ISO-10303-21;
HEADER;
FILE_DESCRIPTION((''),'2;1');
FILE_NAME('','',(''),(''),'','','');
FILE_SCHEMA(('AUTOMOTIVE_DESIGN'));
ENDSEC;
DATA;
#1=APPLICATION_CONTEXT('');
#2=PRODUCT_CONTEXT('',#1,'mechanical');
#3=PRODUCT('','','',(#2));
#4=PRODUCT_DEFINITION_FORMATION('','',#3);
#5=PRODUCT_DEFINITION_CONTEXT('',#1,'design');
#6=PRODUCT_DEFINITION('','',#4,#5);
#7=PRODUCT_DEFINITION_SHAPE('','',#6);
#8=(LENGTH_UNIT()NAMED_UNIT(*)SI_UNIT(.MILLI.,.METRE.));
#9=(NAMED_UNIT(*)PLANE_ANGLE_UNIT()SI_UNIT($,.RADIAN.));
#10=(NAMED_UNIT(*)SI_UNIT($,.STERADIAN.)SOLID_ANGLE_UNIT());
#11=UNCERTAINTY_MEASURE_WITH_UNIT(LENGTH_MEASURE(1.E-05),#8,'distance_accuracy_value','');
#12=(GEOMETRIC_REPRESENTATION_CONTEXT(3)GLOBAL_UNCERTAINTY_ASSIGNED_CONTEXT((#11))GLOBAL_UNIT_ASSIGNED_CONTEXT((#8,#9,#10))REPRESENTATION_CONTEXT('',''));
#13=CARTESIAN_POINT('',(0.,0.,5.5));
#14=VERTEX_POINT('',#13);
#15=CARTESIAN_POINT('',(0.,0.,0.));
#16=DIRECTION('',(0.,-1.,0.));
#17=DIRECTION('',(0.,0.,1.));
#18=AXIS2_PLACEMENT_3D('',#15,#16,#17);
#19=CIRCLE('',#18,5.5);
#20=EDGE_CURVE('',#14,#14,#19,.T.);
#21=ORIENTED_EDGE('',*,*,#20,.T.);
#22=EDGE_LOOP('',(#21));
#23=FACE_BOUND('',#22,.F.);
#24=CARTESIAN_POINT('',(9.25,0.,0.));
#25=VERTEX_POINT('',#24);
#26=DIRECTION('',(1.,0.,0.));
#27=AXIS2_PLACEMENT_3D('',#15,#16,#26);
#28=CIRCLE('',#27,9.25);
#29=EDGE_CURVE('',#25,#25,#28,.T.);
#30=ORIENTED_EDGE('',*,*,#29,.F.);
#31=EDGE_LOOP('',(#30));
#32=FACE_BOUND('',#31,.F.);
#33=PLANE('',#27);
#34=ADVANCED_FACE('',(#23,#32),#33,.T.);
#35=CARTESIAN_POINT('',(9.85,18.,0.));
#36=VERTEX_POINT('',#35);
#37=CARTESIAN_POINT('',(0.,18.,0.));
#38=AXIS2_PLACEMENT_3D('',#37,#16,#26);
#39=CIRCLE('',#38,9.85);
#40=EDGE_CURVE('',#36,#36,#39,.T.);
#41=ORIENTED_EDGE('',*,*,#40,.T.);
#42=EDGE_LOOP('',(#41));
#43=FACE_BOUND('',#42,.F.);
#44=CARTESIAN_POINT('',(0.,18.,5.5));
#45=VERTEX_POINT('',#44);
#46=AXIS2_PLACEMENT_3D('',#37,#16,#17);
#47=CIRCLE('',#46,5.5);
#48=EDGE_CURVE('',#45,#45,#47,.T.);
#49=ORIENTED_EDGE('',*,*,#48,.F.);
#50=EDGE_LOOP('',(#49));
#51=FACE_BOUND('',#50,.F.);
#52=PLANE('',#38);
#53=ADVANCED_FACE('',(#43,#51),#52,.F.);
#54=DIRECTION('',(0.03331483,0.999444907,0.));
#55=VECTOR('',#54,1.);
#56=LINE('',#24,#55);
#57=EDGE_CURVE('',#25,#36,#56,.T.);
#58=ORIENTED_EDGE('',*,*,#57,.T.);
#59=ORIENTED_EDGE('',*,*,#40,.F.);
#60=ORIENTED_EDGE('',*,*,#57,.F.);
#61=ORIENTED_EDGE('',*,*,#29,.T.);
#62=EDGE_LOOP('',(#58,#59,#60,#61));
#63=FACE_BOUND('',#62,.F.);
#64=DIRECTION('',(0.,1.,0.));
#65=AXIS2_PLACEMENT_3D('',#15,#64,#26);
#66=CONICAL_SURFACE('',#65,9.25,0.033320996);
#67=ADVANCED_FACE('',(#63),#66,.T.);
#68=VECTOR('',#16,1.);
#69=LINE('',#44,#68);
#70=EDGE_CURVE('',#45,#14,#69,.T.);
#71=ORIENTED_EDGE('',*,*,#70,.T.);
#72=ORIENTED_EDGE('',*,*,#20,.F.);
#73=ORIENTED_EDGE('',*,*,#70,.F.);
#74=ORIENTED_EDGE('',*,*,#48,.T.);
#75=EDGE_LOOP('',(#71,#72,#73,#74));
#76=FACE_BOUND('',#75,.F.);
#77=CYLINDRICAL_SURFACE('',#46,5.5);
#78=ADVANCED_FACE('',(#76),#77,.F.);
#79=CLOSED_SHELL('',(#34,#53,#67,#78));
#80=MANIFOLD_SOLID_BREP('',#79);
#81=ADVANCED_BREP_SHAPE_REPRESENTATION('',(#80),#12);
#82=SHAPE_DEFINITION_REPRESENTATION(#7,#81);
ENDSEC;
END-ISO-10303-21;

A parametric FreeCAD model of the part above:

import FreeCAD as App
import Part
import Sketcher
Q = App.Units.Quantity


def add_polygon(sketch, points):
    """Adds a closed chain of lines whose ends are joined by coincident constraints."""
    first, n = sketch.GeometryCount, len(points)
    for a, b in zip(points, points[1:] + points[:1]):
        sketch.addGeometry(Part.LineSegment(App.Vector(*a, 0), App.Vector(*b, 0)), False)
    for i in range(n):
        sketch.addConstraint(Sketcher.Constraint("Coincident", first + i, 2, first + (i + 1) % n, 1))

doc = App.newDocument("Part")
body = doc.addObject("PartDesign::Body", "Body")

sketch1 = body.newObject("Sketcher::SketchObject", "Sketch")
sketch1.AttachmentSupport = (doc.getObject("XY_Plane"), [""])
sketch1.MapMode = "FlatFace"
add_polygon(sketch1, [(0, 18), (0, 0), (9, 0), (10, 18)])
sketch1.addConstraint(Sketcher.Constraint("Vertical", 0))
sketch1.addConstraint(Sketcher.Constraint("Horizontal", 1))
sketch1.addConstraint(Sketcher.Constraint("Horizontal", 3))
sketch1.addConstraint(Sketcher.Constraint("Coincident", 0, 2, -1, 1))
sketch1.addConstraint(Sketcher.Constraint("DistanceY", 0, 2, 0, 1, Q("18 mm")))
sketch1.addConstraint(Sketcher.Constraint("DistanceX", 1, 1, 1, 2, Q("9.25 mm")))
sketch1.addConstraint(Sketcher.Constraint("DistanceX", 3, 2, 3, 1, Q("9.85 mm")))
revolution = body.newObject("PartDesign::Revolution", "Revolution")
revolution.Profile = sketch1
revolution.ReferenceAxis = (sketch1, ["V_Axis"])
revolution.Angle = 360

sketch2 = body.newObject("Sketcher::SketchObject", "Sketch001")
sketch2.AttachmentSupport = (doc.getObject("XZ_Plane"), [""])
sketch2.MapMode = "FlatFace"
sketch2.AttachmentOffset = App.Placement(App.Vector(0, 0, -18), App.Rotation())
sketch2.addGeometry(Part.Circle(App.Vector(0, 0, 0), App.Vector(0, 0, 1), 6), False)
sketch2.addConstraint(Sketcher.Constraint("Coincident", 0, 3, -1, 1))
sketch2.addConstraint(Sketcher.Constraint("Diameter", 0, Q("11 mm")))
doc.recompute()
hole = body.newObject("PartDesign::Hole", "Hole")
hole.Profile = sketch2
hole.ThreadType = "None"
hole.Diameter = 11
hole.DepthType = "ThroughAll"
hole.Reversed = True

doc.recompute()
